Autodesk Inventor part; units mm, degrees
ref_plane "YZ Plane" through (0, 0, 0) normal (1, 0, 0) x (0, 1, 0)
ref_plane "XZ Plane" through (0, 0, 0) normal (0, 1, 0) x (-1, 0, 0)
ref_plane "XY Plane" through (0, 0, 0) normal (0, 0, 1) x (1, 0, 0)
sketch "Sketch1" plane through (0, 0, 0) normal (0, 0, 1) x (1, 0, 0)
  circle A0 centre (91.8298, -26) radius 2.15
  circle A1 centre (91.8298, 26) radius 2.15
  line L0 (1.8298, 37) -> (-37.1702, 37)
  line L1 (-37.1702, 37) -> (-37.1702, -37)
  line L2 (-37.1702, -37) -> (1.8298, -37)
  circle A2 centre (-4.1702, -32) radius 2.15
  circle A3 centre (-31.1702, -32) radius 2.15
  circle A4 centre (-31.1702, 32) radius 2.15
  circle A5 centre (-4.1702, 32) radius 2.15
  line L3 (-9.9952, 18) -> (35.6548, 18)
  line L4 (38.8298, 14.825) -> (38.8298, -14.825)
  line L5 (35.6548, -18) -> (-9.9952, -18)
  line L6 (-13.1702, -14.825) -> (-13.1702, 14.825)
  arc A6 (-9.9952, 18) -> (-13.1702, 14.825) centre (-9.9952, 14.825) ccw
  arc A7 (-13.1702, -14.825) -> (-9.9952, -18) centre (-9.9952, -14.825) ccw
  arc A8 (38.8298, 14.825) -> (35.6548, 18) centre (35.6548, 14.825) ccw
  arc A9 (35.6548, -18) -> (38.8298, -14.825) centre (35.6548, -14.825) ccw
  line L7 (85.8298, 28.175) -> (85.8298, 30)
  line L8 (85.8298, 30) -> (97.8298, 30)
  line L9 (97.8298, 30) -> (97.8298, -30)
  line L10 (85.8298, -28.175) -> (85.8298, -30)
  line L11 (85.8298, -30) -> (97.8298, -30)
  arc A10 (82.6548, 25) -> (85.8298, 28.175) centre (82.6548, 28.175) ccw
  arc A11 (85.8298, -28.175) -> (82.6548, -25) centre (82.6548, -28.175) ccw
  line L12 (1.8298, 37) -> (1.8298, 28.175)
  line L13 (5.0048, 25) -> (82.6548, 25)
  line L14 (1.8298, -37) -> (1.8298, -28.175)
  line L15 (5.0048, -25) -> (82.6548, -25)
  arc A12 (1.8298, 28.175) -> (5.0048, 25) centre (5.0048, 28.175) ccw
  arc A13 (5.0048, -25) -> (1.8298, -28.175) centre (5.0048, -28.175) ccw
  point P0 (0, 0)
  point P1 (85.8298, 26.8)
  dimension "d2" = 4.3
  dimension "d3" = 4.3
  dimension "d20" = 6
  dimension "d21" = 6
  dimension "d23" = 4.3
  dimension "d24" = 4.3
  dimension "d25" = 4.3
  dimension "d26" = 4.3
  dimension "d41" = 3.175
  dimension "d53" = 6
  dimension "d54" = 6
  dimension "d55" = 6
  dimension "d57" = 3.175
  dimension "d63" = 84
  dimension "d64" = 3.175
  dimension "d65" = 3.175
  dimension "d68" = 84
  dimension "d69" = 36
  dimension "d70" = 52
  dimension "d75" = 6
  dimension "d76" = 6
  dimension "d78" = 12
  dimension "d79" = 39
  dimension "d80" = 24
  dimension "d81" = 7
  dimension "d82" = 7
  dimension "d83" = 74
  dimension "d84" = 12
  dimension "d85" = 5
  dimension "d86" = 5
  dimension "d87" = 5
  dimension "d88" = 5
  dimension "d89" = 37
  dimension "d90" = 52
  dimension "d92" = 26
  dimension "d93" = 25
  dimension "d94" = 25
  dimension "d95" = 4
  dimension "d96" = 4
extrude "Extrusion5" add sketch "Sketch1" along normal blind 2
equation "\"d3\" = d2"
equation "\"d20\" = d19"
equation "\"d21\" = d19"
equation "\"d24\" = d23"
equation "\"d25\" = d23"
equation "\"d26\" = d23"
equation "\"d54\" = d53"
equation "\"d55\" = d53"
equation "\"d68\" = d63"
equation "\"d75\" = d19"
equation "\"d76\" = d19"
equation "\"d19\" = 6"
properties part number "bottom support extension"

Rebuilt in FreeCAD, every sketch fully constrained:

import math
import FreeCAD as App
import Part
import Sketcher

V = App.Vector
Q = App.Units.Quantity

doc = App.newDocument("Part")
body = doc.addObject("PartDesign::Body", "Body")

# Sketch on XY plane
sketch1 = doc.addObject("Sketcher::SketchObject", "Sketch")
body.addObject(sketch1)
sketch1.AttachmentSupport = (doc.XY_Plane, [""])
sketch1.MapMode = "FlatFace"
sketch1.addGeometry(Part.LineSegment(V(1.8, 28.2, 0), V(1.8, 37, 0)), False)
sketch1.addGeometry(Part.LineSegment(V(1.8, 37, 0), V(-37.2, 37, 0)), False)
sketch1.addGeometry(Part.LineSegment(V(-37.2, 37, 0), V(-37.2, -37, 0)), False)
sketch1.addGeometry(Part.LineSegment(V(-37.2, -37, 0), V(1.8, -37, 0)), False)
sketch1.addGeometry(Part.LineSegment(V(1.8, -37, 0), V(1.8, -28.2, 0)), False)
sketch1.addGeometry(Part.ArcOfCircle(Part.Circle(V(5, -28.2, 0), V(0, 0, 1), 3.2), math.radians(90), math.radians(180)), False)
sketch1.addGeometry(Part.LineSegment(V(5, -25, 0), V(82.7, -25, 0)), False)
sketch1.addGeometry(Part.ArcOfCircle(Part.Circle(V(82.7, -28.2, 0), V(0, 0, 1), 3.2), math.radians(0), math.radians(90)), False)
sketch1.addGeometry(Part.LineSegment(V(85.8, -28.2, 0), V(85.8, -30, 0)), False)
sketch1.addGeometry(Part.LineSegment(V(85.8, -30, 0), V(97.8, -30, 0)), False)
sketch1.addGeometry(Part.LineSegment(V(97.8, -30, 0), V(97.8, 30, 0)), False)
sketch1.addGeometry(Part.LineSegment(V(97.8, 30, 0), V(85.8, 30, 0)), False)
sketch1.addGeometry(Part.LineSegment(V(85.8, 30, 0), V(85.8, 28.2, 0)), False)
sketch1.addGeometry(Part.ArcOfCircle(Part.Circle(V(82.7, 28.2, 0), V(0, 0, 1), 3.2), math.radians(-90), math.radians(0)), False)
sketch1.addGeometry(Part.LineSegment(V(82.7, 25, 0), V(5, 25, 0)), False)
sketch1.addGeometry(Part.ArcOfCircle(Part.Circle(V(5, 28.2, 0), V(0, 0, 1), 3.2), math.radians(180), math.radians(270)), False)
sketch1.addGeometry(Part.Circle(V(-31.2, -32, 0), V(0, 0, 1), 2.1), False)
sketch1.addGeometry(Part.Circle(V(-4.2, -32, 0), V(0, 0, 1), 2.1), False)
sketch1.addGeometry(Part.Circle(V(91.8, -26, 0), V(0, 0, 1), 2.1), False)
sketch1.addGeometry(Part.ArcOfCircle(Part.Circle(V(-10, 14.8, 0), V(0, 0, 1), 3.2), math.radians(90), math.radians(180)), False)
sketch1.addGeometry(Part.LineSegment(V(-10, 18, 0), V(35.7, 18, 0)), False)
sketch1.addGeometry(Part.ArcOfCircle(Part.Circle(V(35.7, 14.8, 0), V(0, 0, 1), 3.2), math.radians(0), math.radians(90)), False)
sketch1.addGeometry(Part.LineSegment(V(38.8, 14.8, 0), V(38.8, -14.8, 0)), False)
sketch1.addGeometry(Part.ArcOfCircle(Part.Circle(V(35.7, -14.8, 0), V(0, 0, 1), 3.2), math.radians(-90), math.radians(0)), False)
sketch1.addGeometry(Part.LineSegment(V(35.7, -18, 0), V(-10, -18, 0)), False)
sketch1.addGeometry(Part.ArcOfCircle(Part.Circle(V(-10, -14.8, 0), V(0, 0, 1), 3.2), math.radians(180), math.radians(270)), False)
sketch1.addGeometry(Part.LineSegment(V(-13.2, -14.8, 0), V(-13.2, 14.8, 0)), False)
sketch1.addGeometry(Part.Circle(V(-31.2, 32, 0), V(0, 0, 1), 2.1), False)
sketch1.addGeometry(Part.Circle(V(-4.2, 32, 0), V(0, 0, 1), 2.1), False)
sketch1.addGeometry(Part.Circle(V(91.8, 26, 0), V(0, 0, 1), 2.1), False)
sketch1.addConstraint(Sketcher.Constraint("Coincident", 0, 2, 1, 1))
sketch1.addConstraint(Sketcher.Constraint("Coincident", 1, 2, 2, 1))
sketch1.addConstraint(Sketcher.Constraint("Coincident", 2, 2, 3, 1))
sketch1.addConstraint(Sketcher.Constraint("Coincident", 3, 2, 4, 1))
sketch1.addConstraint(Sketcher.Constraint("Tangent", 4, 2, 5, 2))
sketch1.addConstraint(Sketcher.Constraint("Tangent", 5, 1, 6, 1))
sketch1.addConstraint(Sketcher.Constraint("Tangent", 6, 2, 7, 2))
sketch1.addConstraint(Sketcher.Constraint("Tangent", 7, 1, 8, 1))
sketch1.addConstraint(Sketcher.Constraint("Coincident", 8, 2, 9, 1))
sketch1.addConstraint(Sketcher.Constraint("Coincident", 9, 2, 10, 1))
sketch1.addConstraint(Sketcher.Constraint("Coincident", 10, 2, 11, 1))
sketch1.addConstraint(Sketcher.Constraint("Coincident", 11, 2, 12, 1))
sketch1.addConstraint(Sketcher.Constraint("Tangent", 12, 2, 13, 2))
sketch1.addConstraint(Sketcher.Constraint("Tangent", 13, 1, 14, 1))
sketch1.addConstraint(Sketcher.Constraint("Tangent", 14, 2, 15, 2))
sketch1.addConstraint(Sketcher.Constraint("Tangent", 15, 1, 0, 1))
sketch1.addConstraint(Sketcher.Constraint("Tangent", 19, 1, 20, 1))
sketch1.addConstraint(Sketcher.Constraint("Tangent", 20, 2, 21, 2))
sketch1.addConstraint(Sketcher.Constraint("Tangent", 21, 1, 22, 1))
sketch1.addConstraint(Sketcher.Constraint("Tangent", 22, 2, 23, 2))
sketch1.addConstraint(Sketcher.Constraint("Tangent", 23, 1, 24, 1))
sketch1.addConstraint(Sketcher.Constraint("Tangent", 24, 2, 25, 2))
sketch1.addConstraint(Sketcher.Constraint("Tangent", 25, 1, 26, 1))
sketch1.addConstraint(Sketcher.Constraint("Tangent", 26, 2, 19, 2))
sketch1.addConstraint(Sketcher.Constraint("Vertical", 0))
sketch1.addConstraint(Sketcher.Constraint("Horizontal", 1))
sketch1.addConstraint(Sketcher.Constraint("Vertical", 2))
sketch1.addConstraint(Sketcher.Constraint("Horizontal", 3))
sketch1.addConstraint(Sketcher.Constraint("Vertical", 4))
sketch1.addConstraint(Sketcher.Constraint("Horizontal", 6))
sketch1.addConstraint(Sketcher.Constraint("Vertical", 8))
sketch1.addConstraint(Sketcher.Constraint("Horizontal", 9))
sketch1.addConstraint(Sketcher.Constraint("Vertical", 10))
sketch1.addConstraint(Sketcher.Constraint("Horizontal", 11))
sketch1.addConstraint(Sketcher.Constraint("Vertical", 12))
sketch1.addConstraint(Sketcher.Constraint("Horizontal", 14))
sketch1.addConstraint(Sketcher.Constraint("Horizontal", 20))
sketch1.addConstraint(Sketcher.Constraint("Vertical", 22))
sketch1.addConstraint(Sketcher.Constraint("Horizontal", 24))
sketch1.addConstraint(Sketcher.Constraint("Vertical", 26))
sketch1.addConstraint(Sketcher.Constraint("Equal", 5, 7))
sketch1.addConstraint(Sketcher.Constraint("Equal", 7, 13))
sketch1.addConstraint(Sketcher.Constraint("Equal", 13, 15))
sketch1.addConstraint(Sketcher.Constraint("Equal", 16, 17))
sketch1.addConstraint(Sketcher.Constraint("Equal", 17, 18))
sketch1.addConstraint(Sketcher.Constraint("Equal", 15, 19))
sketch1.addConstraint(Sketcher.Constraint("Equal", 19, 21))
sketch1.addConstraint(Sketcher.Constraint("Equal", 21, 23))
sketch1.addConstraint(Sketcher.Constraint("Equal", 23, 25))
sketch1.addConstraint(Sketcher.Constraint("Equal", 18, 27))
sketch1.addConstraint(Sketcher.Constraint("Equal", 27, 28))
sketch1.addConstraint(Sketcher.Constraint("Equal", 28, 29))
sketch1.addConstraint(Sketcher.Constraint("Symmetric", 7, 3, 13, 3, -1))
sketch1.addConstraint(Sketcher.Constraint("Symmetric", 16, 3, 27, 3, -1))
sketch1.addConstraint(Sketcher.Constraint("Symmetric", 17, 3, 28, 3, -1))
sketch1.addConstraint(Sketcher.Constraint("Symmetric", 18, 3, 29, 3, -1))
sketch1.addConstraint(Sketcher.Constraint("Symmetric", 0, 2, 3, 2, -1))
sketch1.addConstraint(Sketcher.Constraint("Horizontal", 16, 3, 17, 3))
sketch1.addConstraint(Sketcher.Constraint("Equal", 8, 12))
sketch1.addConstraint(Sketcher.Constraint("Diameter", 16, Q("4.3 mm")))
sketch1.addConstraint(Sketcher.Constraint("DistanceX", 1, 2, 1, 1, Q("39 mm")))
sketch1.addConstraint(Sketcher.Constraint("DistanceX", 9, 1, 9, 2, Q("12 mm")))
sketch1.addConstraint(Sketcher.Constraint("DistanceY", 2, 2, 2, 1, Q("74 mm")))
sketch1.addConstraint(Sketcher.Constraint("DistanceY", 18, 3, -1, 1, Q("26 mm")))
sketch1.addConstraint(Sketcher.Constraint("DistanceY", 5, 1, -1, 1, Q("25 mm")))
sketch1.addConstraint(Sketcher.Constraint("Radius", 5, Q("3.175 mm")))
sketch1.addConstraint(Sketcher.Constraint("DistanceY", 17, 3, 18, 3, Q("6 mm")))
sketch1.addConstraint(Sketcher.Constraint("DistanceX", 28, 3, 0, 2, Q("6 mm")))
sketch1.addConstraint(Sketcher.Constraint("DistanceX", 1, 2, 27, 3, Q("6 mm")))
sketch1.addConstraint(Sketcher.Constraint("DistanceX", 7, 1, 18, 3, Q("6 mm")))
sketch1.addConstraint(Sketcher.Constraint("DistanceY", 8, 2, 6, 2, Q("5 mm")))
sketch1.addConstraint(Sketcher.Constraint("DistanceY", 19, 1, 14, 2, Q("7 mm")))
sketch1.addConstraint(Sketcher.Constraint("DistanceY", 5, 1, 23, 1, Q("7 mm")))
sketch1.addConstraint(Sketcher.Constraint("DistanceX", 17, 3, 18, 3, Q("96 mm")))
sketch1.addConstraint(Sketcher.Constraint("DistanceX", 19, 3, 15, 3, Q("15 mm")))
sketch1.addConstraint(Sketcher.Constraint("DistanceX", 21, 3, 13, 3, Q("47 mm")))
sketch1.addConstraint(Sketcher.Constraint("DistanceX", -1, 1, 5, 3, Q("5.0048 mm")))
pad1 = doc.addObject("PartDesign::Pad", "Pad")
body.addObject(pad1)
pad1.Profile = sketch1
pad1.Length = 2

doc.recompute()
